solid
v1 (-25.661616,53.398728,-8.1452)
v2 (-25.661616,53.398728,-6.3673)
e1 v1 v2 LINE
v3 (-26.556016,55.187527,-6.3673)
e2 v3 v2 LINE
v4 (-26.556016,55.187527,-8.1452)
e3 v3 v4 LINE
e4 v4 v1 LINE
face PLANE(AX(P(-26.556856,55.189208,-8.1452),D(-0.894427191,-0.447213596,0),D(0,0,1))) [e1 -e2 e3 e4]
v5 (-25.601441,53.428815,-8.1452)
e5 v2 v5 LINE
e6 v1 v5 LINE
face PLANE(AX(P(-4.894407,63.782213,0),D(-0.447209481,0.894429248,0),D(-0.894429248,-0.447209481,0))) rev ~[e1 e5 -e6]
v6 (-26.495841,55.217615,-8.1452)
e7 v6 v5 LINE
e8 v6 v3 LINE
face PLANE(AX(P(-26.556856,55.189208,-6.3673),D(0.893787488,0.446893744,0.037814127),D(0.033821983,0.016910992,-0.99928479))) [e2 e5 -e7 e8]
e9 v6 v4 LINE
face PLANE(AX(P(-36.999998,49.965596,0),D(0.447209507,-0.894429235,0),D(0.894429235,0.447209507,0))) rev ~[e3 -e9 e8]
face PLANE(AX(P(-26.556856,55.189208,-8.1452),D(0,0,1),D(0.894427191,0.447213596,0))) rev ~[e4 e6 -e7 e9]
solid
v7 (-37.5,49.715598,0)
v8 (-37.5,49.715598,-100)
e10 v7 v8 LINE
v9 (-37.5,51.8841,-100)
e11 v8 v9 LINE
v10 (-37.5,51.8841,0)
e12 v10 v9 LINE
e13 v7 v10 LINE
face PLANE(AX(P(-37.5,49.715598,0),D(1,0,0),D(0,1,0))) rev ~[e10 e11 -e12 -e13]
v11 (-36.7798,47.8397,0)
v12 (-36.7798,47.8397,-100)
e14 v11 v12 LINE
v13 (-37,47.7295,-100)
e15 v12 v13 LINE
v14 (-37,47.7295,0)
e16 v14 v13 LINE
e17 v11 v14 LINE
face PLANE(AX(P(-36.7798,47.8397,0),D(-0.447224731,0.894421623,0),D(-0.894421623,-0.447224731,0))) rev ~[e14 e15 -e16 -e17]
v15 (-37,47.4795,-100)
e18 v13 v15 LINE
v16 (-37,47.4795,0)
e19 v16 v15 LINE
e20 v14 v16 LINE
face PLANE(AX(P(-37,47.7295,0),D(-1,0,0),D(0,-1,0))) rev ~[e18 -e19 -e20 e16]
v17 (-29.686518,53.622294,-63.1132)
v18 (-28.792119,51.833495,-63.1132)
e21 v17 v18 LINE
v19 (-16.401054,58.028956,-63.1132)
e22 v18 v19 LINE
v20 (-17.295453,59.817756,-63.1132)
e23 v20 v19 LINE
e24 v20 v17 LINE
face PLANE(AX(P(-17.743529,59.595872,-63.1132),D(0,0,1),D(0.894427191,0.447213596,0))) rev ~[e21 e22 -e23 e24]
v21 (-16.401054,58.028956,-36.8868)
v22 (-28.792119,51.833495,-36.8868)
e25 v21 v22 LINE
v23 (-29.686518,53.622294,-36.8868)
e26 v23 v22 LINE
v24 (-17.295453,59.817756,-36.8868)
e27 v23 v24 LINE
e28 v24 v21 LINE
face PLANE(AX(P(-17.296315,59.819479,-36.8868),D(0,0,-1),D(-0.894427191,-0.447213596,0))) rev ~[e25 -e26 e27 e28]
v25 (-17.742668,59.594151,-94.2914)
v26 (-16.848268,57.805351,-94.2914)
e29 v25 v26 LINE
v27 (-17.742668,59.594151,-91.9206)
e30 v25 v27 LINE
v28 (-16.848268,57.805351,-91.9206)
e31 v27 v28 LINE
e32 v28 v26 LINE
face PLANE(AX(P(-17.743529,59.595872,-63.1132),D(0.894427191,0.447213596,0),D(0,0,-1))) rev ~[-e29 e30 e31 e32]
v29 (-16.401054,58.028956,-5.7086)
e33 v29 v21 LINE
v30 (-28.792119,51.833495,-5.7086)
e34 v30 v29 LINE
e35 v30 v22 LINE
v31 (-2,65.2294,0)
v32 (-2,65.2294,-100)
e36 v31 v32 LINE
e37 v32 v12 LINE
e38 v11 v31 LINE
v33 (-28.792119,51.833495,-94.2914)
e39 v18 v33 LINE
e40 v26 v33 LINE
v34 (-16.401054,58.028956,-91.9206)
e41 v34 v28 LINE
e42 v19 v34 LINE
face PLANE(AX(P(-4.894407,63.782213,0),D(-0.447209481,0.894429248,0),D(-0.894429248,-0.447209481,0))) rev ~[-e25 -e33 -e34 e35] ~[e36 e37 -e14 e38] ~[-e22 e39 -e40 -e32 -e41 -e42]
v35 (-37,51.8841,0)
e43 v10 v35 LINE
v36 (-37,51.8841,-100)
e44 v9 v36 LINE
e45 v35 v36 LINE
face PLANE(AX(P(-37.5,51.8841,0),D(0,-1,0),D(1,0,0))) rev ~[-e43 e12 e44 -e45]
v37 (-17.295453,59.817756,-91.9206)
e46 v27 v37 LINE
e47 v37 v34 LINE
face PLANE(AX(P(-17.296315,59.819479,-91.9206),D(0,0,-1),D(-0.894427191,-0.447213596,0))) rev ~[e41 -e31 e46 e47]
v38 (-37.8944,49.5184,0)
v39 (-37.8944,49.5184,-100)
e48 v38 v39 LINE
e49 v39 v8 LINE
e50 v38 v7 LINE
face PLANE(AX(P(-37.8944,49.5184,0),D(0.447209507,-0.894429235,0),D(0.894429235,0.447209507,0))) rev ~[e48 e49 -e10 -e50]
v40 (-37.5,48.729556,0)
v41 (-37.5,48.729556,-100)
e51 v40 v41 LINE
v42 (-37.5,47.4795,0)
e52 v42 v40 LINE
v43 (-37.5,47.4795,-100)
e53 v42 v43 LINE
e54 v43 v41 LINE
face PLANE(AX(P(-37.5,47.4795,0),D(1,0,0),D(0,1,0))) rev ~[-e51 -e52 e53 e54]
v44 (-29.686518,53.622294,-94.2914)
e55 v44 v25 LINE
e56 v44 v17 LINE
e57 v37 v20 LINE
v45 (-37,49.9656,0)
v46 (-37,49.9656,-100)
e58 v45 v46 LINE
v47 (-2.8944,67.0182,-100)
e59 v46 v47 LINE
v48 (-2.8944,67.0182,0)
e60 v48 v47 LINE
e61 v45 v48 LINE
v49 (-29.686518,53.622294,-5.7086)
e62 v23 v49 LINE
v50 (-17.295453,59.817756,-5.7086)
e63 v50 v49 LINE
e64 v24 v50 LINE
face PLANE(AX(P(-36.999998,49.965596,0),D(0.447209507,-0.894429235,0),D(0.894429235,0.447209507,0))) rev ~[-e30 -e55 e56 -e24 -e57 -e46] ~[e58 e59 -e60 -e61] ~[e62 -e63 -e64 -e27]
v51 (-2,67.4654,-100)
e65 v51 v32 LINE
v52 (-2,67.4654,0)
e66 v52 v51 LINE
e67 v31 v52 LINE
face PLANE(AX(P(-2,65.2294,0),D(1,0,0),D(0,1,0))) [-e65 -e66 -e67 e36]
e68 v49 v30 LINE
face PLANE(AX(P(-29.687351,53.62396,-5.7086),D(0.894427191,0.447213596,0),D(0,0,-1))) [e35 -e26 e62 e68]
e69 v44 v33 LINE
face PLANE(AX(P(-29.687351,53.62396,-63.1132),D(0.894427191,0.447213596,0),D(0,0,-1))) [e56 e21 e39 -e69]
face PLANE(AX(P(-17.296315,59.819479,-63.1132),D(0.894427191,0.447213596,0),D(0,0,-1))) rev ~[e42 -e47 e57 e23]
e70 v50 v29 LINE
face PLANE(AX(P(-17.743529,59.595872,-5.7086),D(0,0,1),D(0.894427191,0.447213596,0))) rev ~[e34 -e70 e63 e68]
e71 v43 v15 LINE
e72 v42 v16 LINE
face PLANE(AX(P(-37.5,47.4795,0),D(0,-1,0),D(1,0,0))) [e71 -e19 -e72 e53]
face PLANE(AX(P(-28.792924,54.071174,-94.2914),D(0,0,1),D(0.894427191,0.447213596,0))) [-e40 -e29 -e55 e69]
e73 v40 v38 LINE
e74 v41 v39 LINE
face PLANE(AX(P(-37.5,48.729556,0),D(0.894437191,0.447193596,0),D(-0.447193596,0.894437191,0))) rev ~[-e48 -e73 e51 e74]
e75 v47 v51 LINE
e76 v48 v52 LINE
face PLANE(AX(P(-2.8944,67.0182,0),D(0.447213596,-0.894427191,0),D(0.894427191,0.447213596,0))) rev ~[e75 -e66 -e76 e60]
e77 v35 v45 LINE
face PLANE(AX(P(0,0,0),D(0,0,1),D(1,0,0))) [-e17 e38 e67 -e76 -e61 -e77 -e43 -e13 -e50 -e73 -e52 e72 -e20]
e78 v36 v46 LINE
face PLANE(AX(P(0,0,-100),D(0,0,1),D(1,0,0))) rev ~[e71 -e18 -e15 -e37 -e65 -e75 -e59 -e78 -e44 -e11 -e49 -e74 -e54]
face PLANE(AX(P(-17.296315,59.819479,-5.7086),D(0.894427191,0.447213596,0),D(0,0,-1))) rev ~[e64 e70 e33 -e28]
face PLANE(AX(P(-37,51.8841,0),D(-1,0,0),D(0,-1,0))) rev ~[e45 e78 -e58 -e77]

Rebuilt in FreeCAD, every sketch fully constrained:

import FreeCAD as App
import Part
import Sketcher
from FreeCAD import Vector
Q = App.Units.Quantity

doc = App.newDocument("Part")
body = doc.addObject("PartDesign::Body", "Body")
body.AllowCompound = True

sketch1 = body.newObject("Sketcher::SketchObject", "Sketch")
sketch1.AttachmentSupport = (doc.getObject("XY_Plane"), [""])
sketch1.MapMode = "FlatFace"
sketch1.addGeometry([
    Part.LineSegment(Vector(-37, 47.48, 0), Vector(-37, 47.73, 0)),
    Part.LineSegment(Vector(-37, 47.73, 0), Vector(-36.78, 47.84, 0)),
    Part.LineSegment(Vector(-36.78, 47.84, 0), Vector(-2, 65.23, 0)),
    Part.LineSegment(Vector(-2, 65.23, 0), Vector(-2, 67.47, 0)),
    Part.LineSegment(Vector(-2, 67.47, 0), Vector(-2.89, 67.02, 0)),
    Part.LineSegment(Vector(-2.89, 67.02, 0), Vector(-37, 49.97, 0)),
    Part.LineSegment(Vector(-37, 49.97, 0), Vector(-37, 51.88, 0)),
    Part.LineSegment(Vector(-37, 51.88, 0), Vector(-37.5, 51.88, 0)),
    Part.LineSegment(Vector(-37.5, 51.88, 0), Vector(-37.5, 49.72, 0)),
    Part.LineSegment(Vector(-37.5, 49.72, 0), Vector(-37.89, 49.52, 0)),
    Part.LineSegment(Vector(-37.89, 49.52, 0), Vector(-37.5, 48.73, 0)),
    Part.LineSegment(Vector(-37.5, 48.73, 0), Vector(-37.5, 47.48, 0)),
    Part.LineSegment(Vector(-37.5, 47.48, 0), Vector(-37, 47.48, 0)),
], False)
sketch1.addConstraint([
    Sketcher.Constraint("Coincident", 0, 2, 1, 1),
    Sketcher.Constraint("Coincident", 1, 2, 2, 1),
    Sketcher.Constraint("Coincident", 2, 2, 3, 1),
    Sketcher.Constraint("Coincident", 3, 2, 4, 1),
    Sketcher.Constraint("Coincident", 4, 2, 5, 1),
    Sketcher.Constraint("Coincident", 5, 2, 6, 1),
    Sketcher.Constraint("Coincident", 6, 2, 7, 1),
    Sketcher.Constraint("Coincident", 7, 2, 8, 1),
    Sketcher.Constraint("Coincident", 8, 2, 9, 1),
    Sketcher.Constraint("Coincident", 9, 2, 10, 1),
    Sketcher.Constraint("Coincident", 10, 2, 11, 1),
    Sketcher.Constraint("Coincident", 11, 2, 12, 1),
    Sketcher.Constraint("Coincident", 12, 2, 0, 1),
    Sketcher.Constraint("Vertical", 0),
    Sketcher.Constraint("Vertical", 3),
    Sketcher.Constraint("Vertical", 6),
    Sketcher.Constraint("Horizontal", 7),
    Sketcher.Constraint("Vertical", 8),
    Sketcher.Constraint("Vertical", 11),
    Sketcher.Constraint("Horizontal", 12),
    Sketcher.Constraint("Parallel", 1, 2),
    Sketcher.Constraint("Parallel", 2, 4),
    Sketcher.Constraint("Parallel", 4, 5),
    Sketcher.Constraint("Parallel", 5, 9),
    Sketcher.Constraint("Perpendicular", 9, 10),
    Sketcher.Constraint("Vertical", 0, 2, 5, 2),
    Sketcher.Constraint("Vertical", 8, 2, 10, 2),
    Sketcher.Constraint("DistanceX", 7, 2, 7, 1, Q("0.5 mm")),
    Sketcher.Constraint("DistanceX", 2, 2, -1, 1, Q("2 mm")),
    Sketcher.Constraint("Distance", 4, Q("1 mm")),
    Sketcher.Constraint("DistanceX", 0, 2, -1, 1, Q("37 mm")),
    Sketcher.Constraint("DistanceY", 0, 2, 10, 2, Q("1 mm")),
    Sketcher.Constraint("DistanceY", 0, 1, 0, 2, Q("0.25 mm")),
    Sketcher.Constraint("DistanceY", 0, 2, 2, 2, Q("17.5 mm")),
    Sketcher.Constraint("DistanceY", 3, 1, 3, 2, Q("2.236 mm")),
    Sketcher.Constraint("DistanceY", 8, 2, 5, 2, Q("0.25 mm")),
    Sketcher.Constraint("Distance", 2, Q("38.885 mm")),
    Sketcher.Constraint("DistanceY", 6, 1, 6, 2, Q("1.9185 mm")),
    Sketcher.Constraint("DistanceY", -1, 1, 6, 2, Q("51.884 mm")),
])
pad1 = body.newObject("PartDesign::Pad", "Pad")
pad1.Profile = sketch1
pad1.Length = 100
pad1.Reversed = True

sketch2 = body.newObject("Sketcher::SketchObject", "Sketch001")
sketch2.Placement = App.Placement(Vector(-2, 67.4654, 0), App.Rotation(Vector(0.894427191, 0.447213595, 0), Vector(0, 0, -1), Vector(-0.447213595, 0.894427191, 0), "ZXY"))
sketch2.addGeometry([
    Part.LineSegment(Vector(-17.6, 5.71, 0), Vector(-17.6, 36.89, 0)),
    Part.LineSegment(Vector(-17.6, 36.89, 0), Vector(-28.45, 36.89, 0)),
    Part.LineSegment(Vector(-28.45, 36.89, 0), Vector(-28.45, 5.71, 0)),
    Part.LineSegment(Vector(-28.45, 5.71, 0), Vector(-17.6, 5.71, 0)),
    Part.LineSegment(Vector(-27.39, 8.15, 0), Vector(-27.45, 6.37, 0)),
    Part.LineSegment(Vector(-27.45, 6.37, 0), Vector(-27.45, 8.15, 0)),
    Part.LineSegment(Vector(-27.45, 8.15, 0), Vector(-27.39, 8.15, 0)),
], False)
sketch2.addConstraint([
    Sketcher.Constraint("Coincident", 0, 2, 1, 1),
    Sketcher.Constraint("Coincident", 1, 2, 2, 1),
    Sketcher.Constraint("Coincident", 2, 2, 3, 1),
    Sketcher.Constraint("Coincident", 3, 2, 0, 1),
    Sketcher.Constraint("Coincident", 4, 2, 5, 1),
    Sketcher.Constraint("Coincident", 5, 2, 6, 1),
    Sketcher.Constraint("Coincident", 6, 2, 4, 1),
    Sketcher.Constraint("Vertical", 0),
    Sketcher.Constraint("Horizontal", 1),
    Sketcher.Constraint("Vertical", 2),
    Sketcher.Constraint("Horizontal", 3),
    Sketcher.Constraint("Vertical", 5),
    Sketcher.Constraint("Horizontal", 6),
    Sketcher.Constraint("DistanceX", 2, 2, 4, 2, Q("1 mm")),
    Sketcher.Constraint("DistanceY", 5, 1, 5, 2, Q("1.778 mm")),
    Sketcher.Constraint("DistanceX", 1, 2, 1, 1, Q("10.8536 mm")),
    Sketcher.Constraint("DistanceX", 6, 1, 6, 2, Q("0.0673 mm")),
    Sketcher.Constraint("DistanceY", 0, 1, 0, 2, Q("31.1782 mm")),
    Sketcher.Constraint("DistanceX", 0, 2, -1, 1, Q("17.6008 mm")),
    Sketcher.Constraint("DistanceY", -1, 1, 0, 2, Q("36.8868 mm")),
    Sketcher.Constraint("DistanceY", -1, 1, 4, 2, Q("6.3673 mm")),
])
pocket1 = body.newObject("PartDesign::Pocket", "Pocket")
pocket1.Profile = sketch2
pocket1.Length = 3

sketch3 = body.newObject("Sketcher::SketchObject", "Sketch002")
sketch3.Placement = App.Placement(Vector(-2, 67.4654, 0), App.Rotation(Vector(0.894427191, 0.447213595, 0), Vector(0, 0, -1), Vector(-0.447213595, 0.894427191, 0), "ZXY"))
sketch3.addGeometry([
    Part.LineSegment(Vector(-28.5, 5.7, 0), Vector(-28.5, 36.9, 0)),
    Part.LineSegment(Vector(-28.5, 36.9, 0), Vector(-30, 36.9, 0)),
    Part.LineSegment(Vector(-30, 36.9, 0), Vector(-30, 5.7, 0)),
    Part.LineSegment(Vector(-30, 5.7, 0), Vector(-28.5, 5.7, 0)),
    Part.LineSegment(Vector(-30, 63.1, 0), Vector(-17.6, 63.1, 0)),
    Part.LineSegment(Vector(-17.6, 63.1, 0), Vector(-17.6, 94.3, 0)),
    Part.LineSegment(Vector(-17.6, 94.3, 0), Vector(-30, 94.3, 0)),
    Part.LineSegment(Vector(-30, 94.3, 0), Vector(-30, 63.1, 0)),
], False)
sketch3.addConstraint([
    Sketcher.Constraint("Coincident", 0, 2, 1, 1),
    Sketcher.Constraint("Coincident", 1, 2, 2, 1),
    Sketcher.Constraint("Coincident", 2, 2, 3, 1),
    Sketcher.Constraint("Coincident", 3, 2, 0, 1),
    Sketcher.Constraint("Coincident", 4, 2, 5, 1),
    Sketcher.Constraint("Coincident", 5, 2, 6, 1),
    Sketcher.Constraint("Coincident", 6, 2, 7, 1),
    Sketcher.Constraint("Coincident", 7, 2, 4, 1),
    Sketcher.Constraint("Vertical", 0),
    Sketcher.Constraint("Horizontal", 1),
    Sketcher.Constraint("Vertical", 2),
    Sketcher.Constraint("Horizontal", 3),
    Sketcher.Constraint("Horizontal", 4),
    Sketcher.Constraint("Vertical", 5),
    Sketcher.Constraint("Horizontal", 6),
    Sketcher.Constraint("Vertical", 7),
    Sketcher.Constraint("Vertical", 2, 2, 6, 2),
    Sketcher.Constraint("Equal", 2, 5),
    Sketcher.Constraint("DistanceX", 1, 2, 1, 1, Q("1.5 mm")),
    Sketcher.Constraint("DistanceX", 4, 1, 4, 2, Q("12.3536 mm")),
    Sketcher.Constraint("DistanceY", 0, 1, 0, 2, Q("31.1782 mm")),
    Sketcher.Constraint("DistanceX", 0, 2, -1, 1, Q("28.4544 mm")),
    Sketcher.Constraint("DistanceY", -1, 1, 0, 2, Q("36.8868 mm")),
    Sketcher.Constraint("DistanceY", -1, 1, 4, 2, Q("63.1132 mm")),
])
pocket2 = body.newObject("PartDesign::Pocket", "Pocket001")
pocket2.Profile = sketch3
pocket2.Length = 3

sketch4 = body.newObject("Sketcher::SketchObject", "Sketch003")
sketch4.Placement = App.Placement(Vector(-2, 67.4654, 0), App.Rotation(Vector(0.894427191, 0.447213595, 0), Vector(0, 0, -1), Vector(-0.447213595, 0.894427191, 0), "ZXY"))
sketch4.addGeometry([
    Part.LineSegment(Vector(-31, 5.7, 0), Vector(-30, 5.7, 0)),
    Part.LineSegment(Vector(-30, 5.7, 0), Vector(-30, 36.9, 0)),
    Part.LineSegment(Vector(-30, 36.9, 0), Vector(-31, 36.9, 0)),
    Part.LineSegment(Vector(-31, 36.9, 0), Vector(-31, 5.7, 0)),
    Part.LineSegment(Vector(-30, 63.1, 0), Vector(-30, 94.3, 0)),
    Part.LineSegment(Vector(-30, 94.3, 0), Vector(-31, 94.3, 0)),
    Part.LineSegment(Vector(-31, 94.3, 0), Vector(-31, 63.1, 0)),
    Part.LineSegment(Vector(-31, 63.1, 0), Vector(-30, 63.1, 0)),
], False)
sketch4.addConstraint([
    Sketcher.Constraint("Coincident", 0, 2, 1, 1),
    Sketcher.Constraint("Coincident", 1, 2, 2, 1),
    Sketcher.Constraint("Coincident", 2, 2, 3, 1),
    Sketcher.Constraint("Coincident", 3, 2, 0, 1),
    Sketcher.Constraint("Coincident", 4, 2, 5, 1),
    Sketcher.Constraint("Coincident", 5, 2, 6, 1),
    Sketcher.Constraint("Coincident", 6, 2, 7, 1),
    Sketcher.Constraint("Coincident", 7, 2, 4, 1),
    Sketcher.Constraint("Horizontal", 0),
    Sketcher.Constraint("Vertical", 1),
    Sketcher.Constraint("Horizontal", 2),
    Sketcher.Constraint("Vertical", 3),
    Sketcher.Constraint("Vertical", 4),
    Sketcher.Constraint("Horizontal", 5),
    Sketcher.Constraint("Vertical", 6),
    Sketcher.Constraint("Horizontal", 7),
    Sketcher.Constraint("Vertical", 1, 2, 4, 2),
    Sketcher.Constraint("Vertical", 3, 2, 5, 2),
    Sketcher.Constraint("Equal", 3, 4),
    Sketcher.Constraint("DistanceX", 0, 1, 0, 2, Q("1 mm")),
    Sketcher.Constraint("DistanceY", 1, 1, 1, 2, Q("31.1782 mm")),
    Sketcher.Constraint("DistanceX", 0, 2, -1, 1, Q("29.9544 mm")),
    Sketcher.Constraint("DistanceY", -1, 1, 0, 2, Q("5.7086 mm")),
    Sketcher.Constraint("DistanceY", -1, 1, 4, 2, Q("94.2914 mm")),
])
pocket3 = body.newObject("PartDesign::Pocket", "Pocket002")
pocket3.Profile = sketch4
pocket3.Length = 3

sketch5 = body.newObject("Sketcher::SketchObject", "Sketch004")
sketch5.Placement = App.Placement(Vector(-2, 67.4654, 0), App.Rotation(Vector(0.894427191, 0.447213595, 0), Vector(0, 0, -1), Vector(-0.447213595, 0.894427191, 0), "ZXY"))
sketch5.addGeometry([
    Part.LineSegment(Vector(-17.1, 91.9, 0), Vector(-17.6, 91.9, 0)),
    Part.LineSegment(Vector(-17.6, 91.9, 0), Vector(-17.6, 63.1, 0)),
    Part.LineSegment(Vector(-17.6, 63.1, 0), Vector(-17.1, 63.1, 0)),
    Part.LineSegment(Vector(-17.1, 63.1, 0), Vector(-17.1, 91.9, 0)),
    Part.LineSegment(Vector(-17.1, 36.9, 0), Vector(-17.6, 36.9, 0)),
    Part.LineSegment(Vector(-17.6, 36.9, 0), Vector(-17.6, 5.7, 0)),
    Part.LineSegment(Vector(-17.6, 5.7, 0), Vector(-17.1, 5.7, 0)),
    Part.LineSegment(Vector(-17.1, 5.7, 0), Vector(-17.1, 36.9, 0)),
], False)
sketch5.addConstraint([
    Sketcher.Constraint("Coincident", 0, 2, 1, 1),
    Sketcher.Constraint("Coincident", 1, 2, 2, 1),
    Sketcher.Constraint("Coincident", 2, 2, 3, 1),
    Sketcher.Constraint("Coincident", 3, 2, 0, 1),
    Sketcher.Constraint("Coincident", 4, 2, 5, 1),
    Sketcher.Constraint("Coincident", 5, 2, 6, 1),
    Sketcher.Constraint("Coincident", 6, 2, 7, 1),
    Sketcher.Constraint("Coincident", 7, 2, 4, 1),
    Sketcher.Constraint("Horizontal", 0),
    Sketcher.Constraint("Vertical", 1),
    Sketcher.Constraint("Horizontal", 2),
    Sketcher.Constraint("Vertical", 3),
    Sketcher.Constraint("Horizontal", 4),
    Sketcher.Constraint("Vertical", 5),
    Sketcher.Constraint("Horizontal", 6),
    Sketcher.Constraint("Vertical", 7),
    Sketcher.Constraint("Vertical", 1, 2, 4, 2),
    Sketcher.Constraint("Vertical", 3, 2, 6, 2),
    Sketcher.Constraint("DistanceX", 0, 2, 0, 1, Q("0.5 mm")),
    Sketcher.Constraint("DistanceY", 1, 2, 1, 1, Q("28.8074 mm")),
    Sketcher.Constraint("DistanceY", 5, 2, 5, 1, Q("31.1782 mm")),
    Sketcher.Constraint("DistanceY", 5, 2, 0, 2, Q("86.212 mm")),
    Sketcher.Constraint("DistanceX", 0, 2, -1, 1, Q("17.6008 mm")),
    Sketcher.Constraint("DistanceY", -1, 1, 0, 2, Q("91.9206 mm")),
])
pocket4 = body.newObject("PartDesign::Pocket", "Pocket003")
pocket4.Profile = sketch5
pocket4.Length = 3

doc.recompute()
